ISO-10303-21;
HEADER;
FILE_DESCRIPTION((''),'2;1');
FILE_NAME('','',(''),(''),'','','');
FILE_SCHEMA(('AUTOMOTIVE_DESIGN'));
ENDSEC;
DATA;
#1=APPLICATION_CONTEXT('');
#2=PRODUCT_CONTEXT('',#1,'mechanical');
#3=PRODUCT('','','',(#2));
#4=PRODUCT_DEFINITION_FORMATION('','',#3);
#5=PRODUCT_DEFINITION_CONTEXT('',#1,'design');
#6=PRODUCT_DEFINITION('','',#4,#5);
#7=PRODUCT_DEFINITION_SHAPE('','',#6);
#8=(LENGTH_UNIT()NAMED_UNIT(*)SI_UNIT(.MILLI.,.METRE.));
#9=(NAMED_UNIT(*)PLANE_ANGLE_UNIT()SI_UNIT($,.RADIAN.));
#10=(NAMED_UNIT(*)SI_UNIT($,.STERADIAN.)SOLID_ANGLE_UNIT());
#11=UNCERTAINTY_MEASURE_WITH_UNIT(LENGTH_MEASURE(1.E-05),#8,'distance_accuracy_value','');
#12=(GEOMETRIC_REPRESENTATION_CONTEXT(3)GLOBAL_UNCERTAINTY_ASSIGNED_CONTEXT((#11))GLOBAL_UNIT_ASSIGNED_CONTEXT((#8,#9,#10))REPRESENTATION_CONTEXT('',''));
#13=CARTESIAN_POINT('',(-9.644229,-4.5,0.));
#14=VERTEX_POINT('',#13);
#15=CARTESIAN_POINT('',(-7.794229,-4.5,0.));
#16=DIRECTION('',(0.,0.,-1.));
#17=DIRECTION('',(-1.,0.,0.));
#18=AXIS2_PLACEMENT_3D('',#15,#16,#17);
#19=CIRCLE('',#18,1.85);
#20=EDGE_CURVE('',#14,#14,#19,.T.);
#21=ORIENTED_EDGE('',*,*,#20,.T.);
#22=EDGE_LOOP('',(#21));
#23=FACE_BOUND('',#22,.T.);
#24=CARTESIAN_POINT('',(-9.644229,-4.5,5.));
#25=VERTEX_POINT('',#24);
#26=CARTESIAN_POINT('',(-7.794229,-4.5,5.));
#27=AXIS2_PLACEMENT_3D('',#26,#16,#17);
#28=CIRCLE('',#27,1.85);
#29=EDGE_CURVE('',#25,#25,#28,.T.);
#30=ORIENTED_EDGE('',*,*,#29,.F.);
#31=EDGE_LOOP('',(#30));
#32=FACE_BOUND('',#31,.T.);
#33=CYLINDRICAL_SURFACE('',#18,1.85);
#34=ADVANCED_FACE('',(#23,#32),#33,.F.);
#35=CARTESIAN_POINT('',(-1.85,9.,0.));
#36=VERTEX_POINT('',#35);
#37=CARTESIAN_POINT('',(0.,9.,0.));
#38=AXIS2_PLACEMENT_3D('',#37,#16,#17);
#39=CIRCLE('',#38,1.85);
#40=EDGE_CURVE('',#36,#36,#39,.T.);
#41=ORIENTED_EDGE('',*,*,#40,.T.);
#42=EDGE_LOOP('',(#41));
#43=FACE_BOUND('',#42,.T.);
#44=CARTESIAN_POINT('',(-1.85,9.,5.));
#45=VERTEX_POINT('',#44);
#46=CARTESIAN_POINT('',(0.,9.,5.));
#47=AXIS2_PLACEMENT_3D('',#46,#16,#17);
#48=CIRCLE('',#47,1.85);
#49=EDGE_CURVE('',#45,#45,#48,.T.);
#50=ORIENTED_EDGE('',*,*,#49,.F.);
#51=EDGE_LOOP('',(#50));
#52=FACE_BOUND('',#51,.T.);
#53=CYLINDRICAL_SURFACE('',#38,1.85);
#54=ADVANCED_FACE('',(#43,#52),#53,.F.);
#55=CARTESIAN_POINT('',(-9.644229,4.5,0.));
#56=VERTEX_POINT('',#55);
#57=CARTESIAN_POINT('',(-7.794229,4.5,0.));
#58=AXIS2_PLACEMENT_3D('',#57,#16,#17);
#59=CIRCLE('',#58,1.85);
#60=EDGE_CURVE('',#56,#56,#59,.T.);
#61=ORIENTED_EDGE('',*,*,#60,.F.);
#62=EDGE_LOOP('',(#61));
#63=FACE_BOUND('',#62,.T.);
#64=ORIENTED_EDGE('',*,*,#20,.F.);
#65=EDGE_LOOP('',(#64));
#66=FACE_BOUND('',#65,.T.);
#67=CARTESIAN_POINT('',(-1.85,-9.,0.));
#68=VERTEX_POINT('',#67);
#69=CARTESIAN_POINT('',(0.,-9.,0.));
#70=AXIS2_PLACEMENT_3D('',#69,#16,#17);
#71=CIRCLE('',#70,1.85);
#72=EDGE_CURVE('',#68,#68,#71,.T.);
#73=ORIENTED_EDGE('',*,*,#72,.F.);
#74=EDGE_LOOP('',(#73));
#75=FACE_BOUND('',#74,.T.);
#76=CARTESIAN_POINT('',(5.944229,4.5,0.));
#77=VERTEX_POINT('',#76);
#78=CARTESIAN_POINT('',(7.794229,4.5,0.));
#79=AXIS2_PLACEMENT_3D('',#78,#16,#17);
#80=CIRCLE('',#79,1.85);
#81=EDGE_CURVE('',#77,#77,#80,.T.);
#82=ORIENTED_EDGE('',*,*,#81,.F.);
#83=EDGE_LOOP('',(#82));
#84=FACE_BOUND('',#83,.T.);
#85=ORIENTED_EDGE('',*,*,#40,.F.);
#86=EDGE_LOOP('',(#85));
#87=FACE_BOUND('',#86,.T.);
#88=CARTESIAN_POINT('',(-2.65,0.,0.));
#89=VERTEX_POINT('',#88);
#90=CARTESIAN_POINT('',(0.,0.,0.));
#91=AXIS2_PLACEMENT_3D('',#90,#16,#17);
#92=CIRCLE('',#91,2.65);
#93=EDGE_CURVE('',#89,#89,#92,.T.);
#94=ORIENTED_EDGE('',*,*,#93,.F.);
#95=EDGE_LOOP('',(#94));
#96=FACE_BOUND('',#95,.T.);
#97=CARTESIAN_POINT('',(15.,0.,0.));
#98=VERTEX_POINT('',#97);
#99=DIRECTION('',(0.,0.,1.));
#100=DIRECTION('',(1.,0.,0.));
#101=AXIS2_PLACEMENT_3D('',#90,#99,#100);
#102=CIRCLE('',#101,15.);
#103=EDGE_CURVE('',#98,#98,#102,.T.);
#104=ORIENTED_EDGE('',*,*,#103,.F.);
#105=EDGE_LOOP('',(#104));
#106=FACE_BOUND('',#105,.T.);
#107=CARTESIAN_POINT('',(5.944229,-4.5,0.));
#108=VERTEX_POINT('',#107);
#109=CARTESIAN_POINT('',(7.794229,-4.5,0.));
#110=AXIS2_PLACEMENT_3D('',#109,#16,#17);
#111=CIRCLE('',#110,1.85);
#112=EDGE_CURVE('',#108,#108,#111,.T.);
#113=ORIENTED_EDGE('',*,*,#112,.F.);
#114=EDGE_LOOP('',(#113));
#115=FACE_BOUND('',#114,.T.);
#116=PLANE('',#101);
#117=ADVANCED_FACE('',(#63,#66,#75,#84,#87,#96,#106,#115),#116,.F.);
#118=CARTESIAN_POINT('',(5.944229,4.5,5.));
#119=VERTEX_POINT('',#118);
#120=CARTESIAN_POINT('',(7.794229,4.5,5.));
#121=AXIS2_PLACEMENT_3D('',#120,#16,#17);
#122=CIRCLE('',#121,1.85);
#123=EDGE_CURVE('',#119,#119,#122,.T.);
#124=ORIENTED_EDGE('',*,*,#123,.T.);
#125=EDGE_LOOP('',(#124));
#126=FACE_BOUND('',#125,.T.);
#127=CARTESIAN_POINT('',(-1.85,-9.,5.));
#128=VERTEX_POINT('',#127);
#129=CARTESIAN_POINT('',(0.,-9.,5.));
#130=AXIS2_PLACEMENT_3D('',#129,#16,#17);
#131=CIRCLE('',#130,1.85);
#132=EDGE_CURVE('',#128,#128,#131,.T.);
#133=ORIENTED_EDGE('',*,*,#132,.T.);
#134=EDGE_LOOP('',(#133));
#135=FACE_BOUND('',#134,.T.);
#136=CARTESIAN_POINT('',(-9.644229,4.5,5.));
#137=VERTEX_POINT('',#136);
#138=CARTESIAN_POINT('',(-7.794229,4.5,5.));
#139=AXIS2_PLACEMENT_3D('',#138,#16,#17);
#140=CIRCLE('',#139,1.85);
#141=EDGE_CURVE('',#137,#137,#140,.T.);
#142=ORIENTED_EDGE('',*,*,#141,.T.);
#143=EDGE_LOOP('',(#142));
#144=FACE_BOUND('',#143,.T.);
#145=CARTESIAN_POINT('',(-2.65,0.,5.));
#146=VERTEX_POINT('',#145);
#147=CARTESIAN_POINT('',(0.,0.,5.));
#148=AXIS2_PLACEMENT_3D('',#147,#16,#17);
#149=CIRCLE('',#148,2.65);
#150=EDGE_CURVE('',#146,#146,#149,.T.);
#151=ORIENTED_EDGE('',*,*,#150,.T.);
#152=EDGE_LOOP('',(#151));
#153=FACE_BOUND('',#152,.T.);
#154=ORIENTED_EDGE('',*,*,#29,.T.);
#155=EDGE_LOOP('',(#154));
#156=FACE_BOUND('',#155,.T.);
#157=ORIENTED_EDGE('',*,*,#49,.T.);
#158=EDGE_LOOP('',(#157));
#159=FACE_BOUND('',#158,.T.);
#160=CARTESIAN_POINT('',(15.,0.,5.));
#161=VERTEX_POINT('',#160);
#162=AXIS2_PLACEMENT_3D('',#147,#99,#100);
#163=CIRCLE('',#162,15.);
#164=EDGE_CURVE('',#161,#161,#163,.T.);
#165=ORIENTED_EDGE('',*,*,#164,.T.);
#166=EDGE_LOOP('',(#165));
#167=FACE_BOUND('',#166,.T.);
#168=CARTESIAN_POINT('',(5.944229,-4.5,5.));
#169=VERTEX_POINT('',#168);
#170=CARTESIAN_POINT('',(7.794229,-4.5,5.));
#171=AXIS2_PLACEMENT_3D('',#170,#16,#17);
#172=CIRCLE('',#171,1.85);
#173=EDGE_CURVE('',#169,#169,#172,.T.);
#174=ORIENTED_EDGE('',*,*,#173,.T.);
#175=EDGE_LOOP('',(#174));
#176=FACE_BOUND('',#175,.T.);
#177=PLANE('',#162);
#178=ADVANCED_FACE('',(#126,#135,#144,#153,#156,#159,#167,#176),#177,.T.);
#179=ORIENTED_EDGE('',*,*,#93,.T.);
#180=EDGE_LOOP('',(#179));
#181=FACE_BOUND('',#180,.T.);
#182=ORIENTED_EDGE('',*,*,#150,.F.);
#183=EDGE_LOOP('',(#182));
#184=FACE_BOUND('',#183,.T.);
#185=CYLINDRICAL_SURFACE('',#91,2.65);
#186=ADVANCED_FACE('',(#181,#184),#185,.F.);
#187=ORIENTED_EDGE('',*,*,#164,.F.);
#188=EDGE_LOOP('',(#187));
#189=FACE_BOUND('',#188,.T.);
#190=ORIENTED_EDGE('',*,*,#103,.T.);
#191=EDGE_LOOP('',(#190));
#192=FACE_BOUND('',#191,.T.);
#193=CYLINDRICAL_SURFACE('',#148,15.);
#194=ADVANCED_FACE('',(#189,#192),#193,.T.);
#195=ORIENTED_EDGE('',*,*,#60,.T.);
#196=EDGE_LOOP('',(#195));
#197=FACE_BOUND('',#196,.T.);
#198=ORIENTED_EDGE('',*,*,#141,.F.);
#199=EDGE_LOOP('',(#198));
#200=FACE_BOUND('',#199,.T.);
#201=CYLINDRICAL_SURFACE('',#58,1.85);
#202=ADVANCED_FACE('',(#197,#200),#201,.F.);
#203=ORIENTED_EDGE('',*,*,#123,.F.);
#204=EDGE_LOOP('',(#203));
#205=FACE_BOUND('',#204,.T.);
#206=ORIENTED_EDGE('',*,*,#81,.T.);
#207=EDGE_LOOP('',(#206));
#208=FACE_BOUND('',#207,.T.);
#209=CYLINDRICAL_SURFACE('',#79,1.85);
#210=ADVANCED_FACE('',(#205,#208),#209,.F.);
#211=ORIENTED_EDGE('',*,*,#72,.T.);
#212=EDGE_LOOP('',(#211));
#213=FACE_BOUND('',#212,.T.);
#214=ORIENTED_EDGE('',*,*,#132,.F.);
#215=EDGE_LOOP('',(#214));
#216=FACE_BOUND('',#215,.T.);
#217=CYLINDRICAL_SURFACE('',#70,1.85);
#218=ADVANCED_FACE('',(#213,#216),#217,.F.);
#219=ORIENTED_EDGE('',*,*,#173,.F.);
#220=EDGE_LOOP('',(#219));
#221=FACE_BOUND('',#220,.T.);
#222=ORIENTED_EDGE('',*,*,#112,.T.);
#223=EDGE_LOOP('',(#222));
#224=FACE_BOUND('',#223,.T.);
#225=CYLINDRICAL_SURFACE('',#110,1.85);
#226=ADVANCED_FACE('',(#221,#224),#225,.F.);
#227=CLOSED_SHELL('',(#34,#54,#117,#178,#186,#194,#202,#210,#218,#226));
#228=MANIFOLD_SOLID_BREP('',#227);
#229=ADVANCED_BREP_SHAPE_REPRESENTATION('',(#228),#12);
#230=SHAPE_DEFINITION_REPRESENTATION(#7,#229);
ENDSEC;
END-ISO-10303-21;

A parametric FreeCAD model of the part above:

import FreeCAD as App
import Part
import Sketcher

V = App.Vector
Q = App.Units.Quantity

doc = App.newDocument("Part")
body = doc.addObject("PartDesign::Body", "Body")

# Sketch on XY plane
sketch1 = body.newObject("Sketcher::SketchObject", "Sketch")
sketch1.AttachmentSupport = (doc.getObject("XY_Plane"), [""])
sketch1.MapMode = "FlatFace"
sketch1.addGeometry(Part.Circle(V(0, 0, 0), V(0, 0, 1), 15), False)
sketch1.addConstraint([
    Sketcher.Constraint("Coincident", 0, 3, -1, 1),
    Sketcher.Constraint("Diameter", 0, Q("30 mm")),
])
pad1 = body.newObject("PartDesign::Pad", "Pad")
pad1.Profile = sketch1
pad1.Length = 5

# Sketch on XY plane
sketch2 = body.newObject("Sketcher::SketchObject", "Sketch001")
sketch2.AttachmentSupport = (doc.getObject("XY_Plane"), [""])
sketch2.MapMode = "FlatFace"
sketch2.addGeometry(Part.Circle(V(0, 0, 0), V(0, 0, 1), 2.65), False)
sketch2.addConstraint([
    Sketcher.Constraint("Coincident", 0, 3, -1, 1),
    Sketcher.Constraint("Diameter", 0, Q("5.3 mm")),
])
doc.recompute()
hole = body.newObject("PartDesign::Hole", "Hole")
hole.Profile = sketch2
hole.ThreadType = "None"
hole.Diameter = 5.3
hole.DepthType = "ThroughAll"
hole.Reversed = True

# Sketch on XY plane
sketch3 = body.newObject("Sketcher::SketchObject", "Sketch002")
sketch3.AttachmentSupport = (doc.getObject("XY_Plane"), [""])
sketch3.MapMode = "FlatFace"
sketch3.addGeometry(Part.Circle(V(0, 9, 0), V(0, 0, 1), 1.85), False)
sketch3.addConstraint([
    Sketcher.Constraint("PointOnObject", 0, 3, -2),
    Sketcher.Constraint("Diameter", 0, Q("3.7 mm")),
    Sketcher.Constraint("DistanceY", -1, 1, 0, 3, Q("9 mm")),
])
doc.recompute()
hole2 = body.newObject("PartDesign::Hole", "Hole001")
hole2.Profile = sketch3
hole2.ThreadType = "None"
hole2.Diameter = 3.7
hole2.DepthType = "ThroughAll"
hole2.Reversed = True
doc.recompute()

polarpattern = body.newObject("PartDesign::PolarPattern", "PolarPattern")
polarpattern.Originals = [hole2]
polarpattern.Axis = (doc.getObject("Z_Axis"), [""])
polarpattern.Angle = 360
polarpattern.Occurrences = 6
body.Tip = polarpattern

doc.recompute()
